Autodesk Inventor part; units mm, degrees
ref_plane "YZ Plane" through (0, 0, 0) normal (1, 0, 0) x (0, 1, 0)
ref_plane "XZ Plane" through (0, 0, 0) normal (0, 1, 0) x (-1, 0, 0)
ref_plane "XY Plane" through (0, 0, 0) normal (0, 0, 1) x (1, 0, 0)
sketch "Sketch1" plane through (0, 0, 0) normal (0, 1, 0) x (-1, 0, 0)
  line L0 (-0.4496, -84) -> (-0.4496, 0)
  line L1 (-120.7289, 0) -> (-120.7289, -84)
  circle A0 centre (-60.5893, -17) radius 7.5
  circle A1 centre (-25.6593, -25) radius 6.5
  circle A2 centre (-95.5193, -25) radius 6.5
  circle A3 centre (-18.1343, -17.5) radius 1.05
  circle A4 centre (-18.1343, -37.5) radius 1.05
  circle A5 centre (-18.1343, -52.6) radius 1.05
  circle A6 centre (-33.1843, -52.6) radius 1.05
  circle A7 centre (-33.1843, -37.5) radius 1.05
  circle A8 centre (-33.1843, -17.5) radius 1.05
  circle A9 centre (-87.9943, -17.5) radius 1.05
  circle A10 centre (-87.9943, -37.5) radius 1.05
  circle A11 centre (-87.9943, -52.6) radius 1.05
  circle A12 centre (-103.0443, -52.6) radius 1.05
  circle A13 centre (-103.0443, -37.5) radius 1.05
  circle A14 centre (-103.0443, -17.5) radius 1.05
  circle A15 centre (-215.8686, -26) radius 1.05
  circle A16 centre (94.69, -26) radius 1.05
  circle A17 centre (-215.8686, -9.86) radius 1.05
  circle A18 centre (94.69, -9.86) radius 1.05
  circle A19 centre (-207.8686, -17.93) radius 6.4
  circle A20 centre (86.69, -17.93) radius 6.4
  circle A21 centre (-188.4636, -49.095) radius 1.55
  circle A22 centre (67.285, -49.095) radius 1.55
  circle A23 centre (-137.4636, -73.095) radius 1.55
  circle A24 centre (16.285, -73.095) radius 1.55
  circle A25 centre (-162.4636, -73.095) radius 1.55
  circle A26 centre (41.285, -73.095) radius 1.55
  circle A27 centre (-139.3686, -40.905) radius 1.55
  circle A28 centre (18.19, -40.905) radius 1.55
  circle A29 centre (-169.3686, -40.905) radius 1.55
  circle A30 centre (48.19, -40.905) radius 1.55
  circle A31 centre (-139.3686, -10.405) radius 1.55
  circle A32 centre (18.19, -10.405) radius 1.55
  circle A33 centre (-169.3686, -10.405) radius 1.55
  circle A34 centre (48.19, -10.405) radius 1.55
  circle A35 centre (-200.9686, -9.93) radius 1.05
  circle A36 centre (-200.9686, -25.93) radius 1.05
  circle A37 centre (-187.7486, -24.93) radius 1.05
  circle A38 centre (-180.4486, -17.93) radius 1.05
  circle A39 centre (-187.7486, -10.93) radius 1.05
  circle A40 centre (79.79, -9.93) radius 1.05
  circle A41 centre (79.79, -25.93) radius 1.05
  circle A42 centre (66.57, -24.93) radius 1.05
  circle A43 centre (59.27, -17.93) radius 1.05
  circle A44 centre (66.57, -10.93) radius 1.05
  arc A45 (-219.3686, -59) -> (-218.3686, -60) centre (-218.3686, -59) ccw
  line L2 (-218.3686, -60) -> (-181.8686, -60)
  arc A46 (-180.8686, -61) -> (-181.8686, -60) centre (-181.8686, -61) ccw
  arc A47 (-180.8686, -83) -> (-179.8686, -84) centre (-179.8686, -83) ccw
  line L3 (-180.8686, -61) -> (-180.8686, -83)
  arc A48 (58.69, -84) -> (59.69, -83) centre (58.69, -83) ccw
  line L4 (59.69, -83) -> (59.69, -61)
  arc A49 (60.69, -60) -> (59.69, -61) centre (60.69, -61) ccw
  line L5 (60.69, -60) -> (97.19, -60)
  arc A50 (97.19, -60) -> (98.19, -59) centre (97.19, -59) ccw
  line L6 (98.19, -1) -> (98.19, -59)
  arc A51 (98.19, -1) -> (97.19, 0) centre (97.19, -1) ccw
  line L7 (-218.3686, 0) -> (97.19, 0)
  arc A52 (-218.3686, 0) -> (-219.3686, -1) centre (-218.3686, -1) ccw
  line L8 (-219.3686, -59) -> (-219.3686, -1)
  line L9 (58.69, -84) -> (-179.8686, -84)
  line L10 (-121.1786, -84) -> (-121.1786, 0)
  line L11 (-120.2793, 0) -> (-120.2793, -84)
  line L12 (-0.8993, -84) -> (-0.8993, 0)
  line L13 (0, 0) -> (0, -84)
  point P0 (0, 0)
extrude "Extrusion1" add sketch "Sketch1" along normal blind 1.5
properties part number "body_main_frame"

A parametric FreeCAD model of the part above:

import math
import FreeCAD as App
import Part
import Sketcher
Q = App.Units.Quantity

doc = App.newDocument("Part")
body = doc.addObject("PartDesign::Body", "Body")

# Sketch on XZ plane
sketch1 = body.newObject("Sketcher::SketchObject", "Sketch")
sketch1.AttachmentSupport = (doc.getObject("XZ_Plane"), [""])
sketch1.MapMode = "FlatFace"
sketch1.addGeometry(Part.ArcOfCircle(Part.Circle(App.Vector(-58.7, -83, 0), App.Vector(0, 0, 1), 1), math.radians(180), math.radians(270)), False)
sketch1.addGeometry(Part.LineSegment(App.Vector(-59.7, -83, 0), App.Vector(-59.7, -61, 0)), False)
sketch1.addGeometry(Part.ArcOfCircle(Part.Circle(App.Vector(-60.7, -61, 0), App.Vector(0, 0, 1), 1), math.radians(0), math.radians(90)), False)
sketch1.addGeometry(Part.LineSegment(App.Vector(-60.7, -60, 0), App.Vector(-97.2, -60, 0)), False)
sketch1.addGeometry(Part.ArcOfCircle(Part.Circle(App.Vector(-97.2, -59, 0), App.Vector(0, 0, 1), 1), math.radians(180), math.radians(270)), False)
sketch1.addGeometry(Part.LineSegment(App.Vector(-98.2, -59, 0), App.Vector(-98.2, -1, 0)), False)
sketch1.addGeometry(Part.ArcOfCircle(Part.Circle(App.Vector(-97.2, -1, 0), App.Vector(0, 0, 1), 1), math.radians(90), math.radians(180)), False)
sketch1.addGeometry(Part.LineSegment(App.Vector(-97.2, 0, 0), App.Vector(218.4, 0, 0)), False)
sketch1.addGeometry(Part.ArcOfCircle(Part.Circle(App.Vector(218.4, -1, 0), App.Vector(0, 0, 1), 1), math.radians(0), math.radians(90)), False)
sketch1.addGeometry(Part.LineSegment(App.Vector(219.4, -1, 0), App.Vector(219.4, -59, 0)), False)
sketch1.addGeometry(Part.ArcOfCircle(Part.Circle(App.Vector(218.4, -59, 0), App.Vector(0, 0, 1), 1), math.radians(-90), math.radians(0)), False)
sketch1.addGeometry(Part.LineSegment(App.Vector(218.4, -60, 0), App.Vector(181.9, -60, 0)), False)
sketch1.addGeometry(Part.ArcOfCircle(Part.Circle(App.Vector(181.9, -61, 0), App.Vector(0, 0, 1), 1), math.radians(90), math.radians(180)), False)
sketch1.addGeometry(Part.LineSegment(App.Vector(180.9, -61, 0), App.Vector(180.9, -83, 0)), False)
sketch1.addGeometry(Part.ArcOfCircle(Part.Circle(App.Vector(179.9, -83, 0), App.Vector(0, 0, 1), 1), math.radians(-90), math.radians(0)), False)
sketch1.addGeometry(Part.LineSegment(App.Vector(179.9, -84, 0), App.Vector(-58.7, -84, 0)), False)
sketch1.addGeometry(Part.Circle(App.Vector(18.1, -17.5, 0), App.Vector(0, 0, 1), 1.1), False)
sketch1.addGeometry(Part.Circle(App.Vector(103, -52.6, 0), App.Vector(0, 0, 1), 1.1), False)
sketch1.addGeometry(Part.Circle(App.Vector(88, -52.6, 0), App.Vector(0, 0, 1), 1.1), False)
sketch1.addGeometry(Part.Circle(App.Vector(33.2, -52.6, 0), App.Vector(0, 0, 1), 1.1), False)
sketch1.addGeometry(Part.Circle(App.Vector(18.1, -52.6, 0), App.Vector(0, 0, 1), 1.1), False)
sketch1.addGeometry(Part.Circle(App.Vector(103, -37.5, 0), App.Vector(0, 0, 1), 1.1), False)
sketch1.addGeometry(Part.Circle(App.Vector(88, -37.5, 0), App.Vector(0, 0, 1), 1.1), False)
sketch1.addGeometry(Part.Circle(App.Vector(95.5, -25, 0), App.Vector(0, 0, 1), 6.5), False)
sketch1.addGeometry(Part.Circle(App.Vector(103, -17.5, 0), App.Vector(0, 0, 1), 1.1), False)
sketch1.addGeometry(Part.Circle(App.Vector(88, -17.5, 0), App.Vector(0, 0, 1), 1.1), False)
sketch1.addGeometry(Part.Circle(App.Vector(33.2, -37.5, 0), App.Vector(0, 0, 1), 1.1), False)
sketch1.addGeometry(Part.Circle(App.Vector(18.1, -37.5, 0), App.Vector(0, 0, 1), 1.1), False)
sketch1.addGeometry(Part.Circle(App.Vector(25.7, -25, 0), App.Vector(0, 0, 1), 6.5), False)
sketch1.addGeometry(Part.Circle(App.Vector(60.6, -17, 0), App.Vector(0, 0, 1), 7.5), False)
sketch1.addGeometry(Part.Circle(App.Vector(33.2, -17.5, 0), App.Vector(0, 0, 1), 1.1), False)
sketch1.addGeometry(Part.Circle(App.Vector(-94.7, -9.9, 0), App.Vector(0, 0, 1), 1.1), False)
sketch1.addGeometry(Part.Circle(App.Vector(-16.3, -73.1, 0), App.Vector(0, 0, 1), 1.6), False)
sketch1.addGeometry(Part.Circle(App.Vector(-41.3, -73.1, 0), App.Vector(0, 0, 1), 1.6), False)
sketch1.addGeometry(Part.Circle(App.Vector(-67.3, -49.1, 0), App.Vector(0, 0, 1), 1.6), False)
sketch1.addGeometry(Part.Circle(App.Vector(-18.2, -40.9, 0), App.Vector(0, 0, 1), 1.6), False)
sketch1.addGeometry(Part.Circle(App.Vector(-48.2, -40.9, 0), App.Vector(0, 0, 1), 1.6), False)
sketch1.addGeometry(Part.Circle(App.Vector(-66.6, -24.9, 0), App.Vector(0, 0, 1), 1.1), False)
sketch1.addGeometry(Part.Circle(App.Vector(-79.8, -25.9, 0), App.Vector(0, 0, 1), 1.1), False)
sketch1.addGeometry(Part.Circle(App.Vector(-94.7, -26, 0), App.Vector(0, 0, 1), 1.1), False)
sketch1.addGeometry(Part.Circle(App.Vector(-18.2, -10.4, 0), App.Vector(0, 0, 1), 1.6), False)
sketch1.addGeometry(Part.Circle(App.Vector(-59.3, -17.9, 0), App.Vector(0, 0, 1), 1.1), False)
sketch1.addGeometry(Part.Circle(App.Vector(-86.7, -17.9, 0), App.Vector(0, 0, 1), 6.4), False)
sketch1.addGeometry(Part.Circle(App.Vector(-66.6, -10.9, 0), App.Vector(0, 0, 1), 1.1), False)
sketch1.addGeometry(Part.Circle(App.Vector(-48.2, -10.4, 0), App.Vector(0, 0, 1), 1.6), False)
sketch1.addGeometry(Part.Circle(App.Vector(-79.8, -9.9, 0), App.Vector(0, 0, 1), 1.1), False)
sketch1.addGeometry(Part.Circle(App.Vector(139.4, -10.4, 0), App.Vector(0, 0, 1), 1.6), False)
sketch1.addGeometry(Part.Circle(App.Vector(162.5, -73.1, 0), App.Vector(0, 0, 1), 1.6), False)
sketch1.addGeometry(Part.Circle(App.Vector(137.5, -73.1, 0), App.Vector(0, 0, 1), 1.6), False)
sketch1.addGeometry(Part.Circle(App.Vector(188.5, -49.1, 0), App.Vector(0, 0, 1), 1.6), False)
sketch1.addGeometry(Part.Circle(App.Vector(169.4, -40.9, 0), App.Vector(0, 0, 1), 1.6), False)
sketch1.addGeometry(Part.Circle(App.Vector(215.9, -26, 0), App.Vector(0, 0, 1), 1.1), False)
sketch1.addGeometry(Part.Circle(App.Vector(201, -25.9, 0), App.Vector(0, 0, 1), 1.1), False)
sketch1.addGeometry(Part.Circle(App.Vector(187.7, -24.9, 0), App.Vector(0, 0, 1), 1.1), False)
sketch1.addGeometry(Part.Circle(App.Vector(139.4, -40.9, 0), App.Vector(0, 0, 1), 1.6), False)
sketch1.addGeometry(Part.Circle(App.Vector(207.9, -17.9, 0), App.Vector(0, 0, 1), 6.4), False)
sketch1.addGeometry(Part.Circle(App.Vector(180.4, -17.9, 0), App.Vector(0, 0, 1), 1.1), False)
sketch1.addGeometry(Part.Circle(App.Vector(187.7, -10.9, 0), App.Vector(0, 0, 1), 1.1), False)
sketch1.addGeometry(Part.Circle(App.Vector(215.9, -9.9, 0), App.Vector(0, 0, 1), 1.1), False)
sketch1.addGeometry(Part.Circle(App.Vector(201, -9.9, 0), App.Vector(0, 0, 1), 1.1), False)
sketch1.addGeometry(Part.Circle(App.Vector(169.4, -10.4, 0), App.Vector(0, 0, 1), 1.6), False)
sketch1.addConstraint(Sketcher.Constraint("Tangent", 0, 1, 1, 1))
sketch1.addConstraint(Sketcher.Constraint("Tangent", 1, 2, 2, 1))
sketch1.addConstraint(Sketcher.Constraint("Tangent", 2, 2, 3, 1))
sketch1.addConstraint(Sketcher.Constraint("Tangent", 3, 2, 4, 2))
sketch1.addConstraint(Sketcher.Constraint("Tangent", 4, 1, 5, 1))
sketch1.addConstraint(Sketcher.Constraint("Tangent", 5, 2, 6, 2))
sketch1.addConstraint(Sketcher.Constraint("Tangent", 6, 1, 7, 1))
sketch1.addConstraint(Sketcher.Constraint("Tangent", 7, 2, 8, 2))
sketch1.addConstraint(Sketcher.Constraint("Tangent", 8, 1, 9, 1))
sketch1.addConstraint(Sketcher.Constraint("Tangent", 9, 2, 10, 2))
sketch1.addConstraint(Sketcher.Constraint("Tangent", 10, 1, 11, 1))
sketch1.addConstraint(Sketcher.Constraint("Tangent", 11, 2, 12, 1))
sketch1.addConstraint(Sketcher.Constraint("Tangent", 12, 2, 13, 1))
sketch1.addConstraint(Sketcher.Constraint("Tangent", 13, 2, 14, 2))
sketch1.addConstraint(Sketcher.Constraint("Tangent", 14, 1, 15, 1))
sketch1.addConstraint(Sketcher.Constraint("Tangent", 15, 2, 0, 2))
sketch1.addConstraint(Sketcher.Constraint("Vertical", 1))
sketch1.addConstraint(Sketcher.Constraint("Horizontal", 3))
sketch1.addConstraint(Sketcher.Constraint("Vertical", 5))
sketch1.addConstraint(Sketcher.Constraint("Horizontal", 7))
sketch1.addConstraint(Sketcher.Constraint("Vertical", 9))
sketch1.addConstraint(Sketcher.Constraint("Horizontal", 11))
sketch1.addConstraint(Sketcher.Constraint("Vertical", 13))
sketch1.addConstraint(Sketcher.Constraint("Horizontal", 15))
sketch1.addConstraint(Sketcher.Constraint("Equal", 0, 2))
sketch1.addConstraint(Sketcher.Constraint("Equal", 2, 4))
sketch1.addConstraint(Sketcher.Constraint("Equal", 4, 6))
sketch1.addConstraint(Sketcher.Constraint("Equal", 6, 8))
sketch1.addConstraint(Sketcher.Constraint("Equal", 8, 10))
sketch1.addConstraint(Sketcher.Constraint("Equal", 10, 12))
sketch1.addConstraint(Sketcher.Constraint("Equal", 12, 14))
sketch1.addConstraint(Sketcher.Constraint("Equal", 16, 17))
sketch1.addConstraint(Sketcher.Constraint("Equal", 17, 18))
sketch1.addConstraint(Sketcher.Constraint("Equal", 18, 19))
sketch1.addConstraint(Sketcher.Constraint("Equal", 19, 20))
sketch1.addConstraint(Sketcher.Constraint("Equal", 20, 21))
sketch1.addConstraint(Sketcher.Constraint("Equal", 21, 22))
sketch1.addConstraint(Sketcher.Constraint("Equal", 22, 24))
sketch1.addConstraint(Sketcher.Constraint("Equal", 24, 25))
sketch1.addConstraint(Sketcher.Constraint("Equal", 25, 26))
sketch1.addConstraint(Sketcher.Constraint("Equal", 26, 27))
sketch1.addConstraint(Sketcher.Constraint("Equal", 23, 28))
sketch1.addConstraint(Sketcher.Constraint("Equal", 27, 30))
sketch1.addConstraint(Sketcher.Constraint("Equal", 30, 31))
sketch1.addConstraint(Sketcher.Constraint("Equal", 32, 33))
sketch1.addConstraint(Sketcher.Constraint("Equal", 33, 34))
sketch1.addConstraint(Sketcher.Constraint("Equal", 34, 35))
sketch1.addConstraint(Sketcher.Constraint("Equal", 35, 36))
sketch1.addConstraint(Sketcher.Constraint("Equal", 31, 37))
sketch1.addConstraint(Sketcher.Constraint("Equal", 37, 38))
sketch1.addConstraint(Sketcher.Constraint("Equal", 38, 39))
sketch1.addConstraint(Sketcher.Constraint("Equal", 36, 40))
sketch1.addConstraint(Sketcher.Constraint("Equal", 39, 41))
sketch1.addConstraint(Sketcher.Constraint("Equal", 41, 43))
sketch1.addConstraint(Sketcher.Constraint("Equal", 40, 44))
sketch1.addConstraint(Sketcher.Constraint("Equal", 43, 45))
sketch1.addConstraint(Sketcher.Constraint("Equal", 44, 46))
sketch1.addConstraint(Sketcher.Constraint("Equal", 46, 47))
sketch1.addConstraint(Sketcher.Constraint("Equal", 47, 48))
sketch1.addConstraint(Sketcher.Constraint("Equal", 48, 49))
sketch1.addConstraint(Sketcher.Constraint("Equal", 49, 50))
sketch1.addConstraint(Sketcher.Constraint("Equal", 45, 51))
sketch1.addConstraint(Sketcher.Constraint("Equal", 51, 52))
sketch1.addConstraint(Sketcher.Constraint("Equal", 52, 53))
sketch1.addConstraint(Sketcher.Constraint("Equal", 50, 54))
sketch1.addConstraint(Sketcher.Constraint("Equal", 42, 55))
sketch1.addConstraint(Sketcher.Constraint("Equal", 53, 56))
sketch1.addConstraint(Sketcher.Constraint("Equal", 56, 57))
sketch1.addConstraint(Sketcher.Constraint("Equal", 57, 58))
sketch1.addConstraint(Sketcher.Constraint("Equal", 58, 59))
sketch1.addConstraint(Sketcher.Constraint("Equal", 54, 60))
sketch1.addConstraint(Sketcher.Constraint("PointOnObject", 6, 1, -1))
sketch1.addConstraint(Sketcher.Constraint("Horizontal", 4, 3, 10, 3))
sketch1.addConstraint(Sketcher.Constraint("Horizontal", 17, 3, 18, 3))
sketch1.addConstraint(Sketcher.Constraint("Horizontal", 18, 3, 19, 3))
sketch1.addConstraint(Sketcher.Constraint("Horizontal", 19, 3, 20, 3))
sketch1.addConstraint(Sketcher.Constraint("Horizontal", 21, 3, 22, 3))
sketch1.addConstraint(Sketcher.Constraint("Horizontal", 16, 3, 24, 3))
sketch1.addConstraint(Sketcher.Constraint("Horizontal", 24, 3, 25, 3))
sketch1.addConstraint(Sketcher.Constraint("Horizontal", 22, 3, 26, 3))
sketch1.addConstraint(Sketcher.Constraint("Horizontal", 26, 3, 27, 3))
sketch1.addConstraint(Sketcher.Constraint("Horizontal", 23, 3, 28, 3))
sketch1.addConstraint(Sketcher.Constraint("Horizontal", 25, 3, 30, 3))
sketch1.addConstraint(Sketcher.Constraint("Horizontal", 32, 3, 33, 3))
sketch1.addConstraint(Sketcher.Constraint("Horizontal", 35, 3, 36, 3))
sketch1.addConstraint(Sketcher.Constraint("Horizontal", 41, 3, 42, 3))
sketch1.addConstraint(Sketcher.Constraint("Horizontal", 40, 3, 44, 3))
sketch1.addConstraint(Sketcher.Constraint("Horizontal", 44, 3, 46, 3))
sketch1.addConstraint(Sketcher.Constraint("Horizontal", 33, 3, 47, 3))
sketch1.addConstraint(Sketcher.Constraint("Horizontal", 47, 3, 48, 3))
sketch1.addConstraint(Sketcher.Constraint("Horizontal", 34, 3, 49, 3))
sketch1.addConstraint(Sketcher.Constraint("Horizontal", 36, 3, 50, 3))
sketch1.addConstraint(Sketcher.Constraint("Horizontal", 39, 3, 51, 3))
sketch1.addConstraint(Sketcher.Constraint("Horizontal", 38, 3, 52, 3))
sketch1.addConstraint(Sketcher.Constraint("Horizontal", 37, 3, 53, 3))
sketch1.addConstraint(Sketcher.Constraint("Horizontal", 50, 3, 54, 3))
sketch1.addConstraint(Sketcher.Constraint("Horizontal", 42, 3, 55, 3))
sketch1.addConstraint(Sketcher.Constraint("Horizontal", 55, 3, 56, 3))
sketch1.addConstraint(Sketcher.Constraint("Horizontal", 43, 3, 57, 3))
sketch1.addConstraint(Sketcher.Constraint("Horizontal", 31, 3, 58, 3))
sketch1.addConstraint(Sketcher.Constraint("Horizontal", 45, 3, 59, 3))
sketch1.addConstraint(Sketcher.Constraint("Horizontal", 46, 3, 60, 3))
sketch1.addConstraint(Sketcher.Constraint("Vertical", 16, 3, 20, 3))
sketch1.addConstraint(Sketcher.Constraint("Vertical", 17, 3, 21, 3))
sketch1.addConstraint(Sketcher.Constraint("Vertical", 18, 3, 22, 3))
sketch1.addConstraint(Sketcher.Constraint("Vertical", 21, 3, 24, 3))
sketch1.addConstraint(Sketcher.Constraint("Vertical", 22, 3, 25, 3))
sketch1.addConstraint(Sketcher.Constraint("Vertical", 19, 3, 26, 3))
sketch1.addConstraint(Sketcher.Constraint("Vertical", 20, 3, 27, 3))
sketch1.addConstraint(Sketcher.Constraint("Vertical", 26, 3, 30, 3))
sketch1.addConstraint(Sketcher.Constraint("Vertical", 31, 3, 39, 3))
sketch1.addConstraint(Sketcher.Constraint("Vertical", 35, 3, 40, 3))
sketch1.addConstraint(Sketcher.Constraint("Vertical", 37, 3, 43, 3))
sketch1.addConstraint(Sketcher.Constraint("Vertical", 36, 3, 44, 3))
sketch1.addConstraint(Sketcher.Constraint("Vertical", 38, 3, 45, 3))
sketch1.addConstraint(Sketcher.Constraint("Vertical", 46, 3, 54, 3))
sketch1.addConstraint(Sketcher.Constraint("Vertical", 53, 3, 57, 3))
sketch1.addConstraint(Sketcher.Constraint("Vertical", 51, 3, 58, 3))
sketch1.addConstraint(Sketcher.Constraint("Vertical", 52, 3, 59, 3))
sketch1.addConstraint(Sketcher.Constraint("Vertical", 50, 3, 60, 3))
sketch1.addConstraint(Sketcher.Constraint("Equal", 3, 11))
sketch1.addConstraint(Sketcher.Constraint("Diameter", 23, Q("13 mm")))
sketch1.addConstraint(Sketcher.Constraint("Diameter", 29, Q("15 mm")))
sketch1.addConstraint(Sketcher.Constraint("Radius", 0, Q("1 mm")))
sketch1.addConstraint(Sketcher.Constraint("Diameter", 16, Q("2.1 mm")))
sketch1.addConstraint(Sketcher.Constraint("Diameter", 32, Q("3.1 mm")))
sketch1.addConstraint(Sketcher.Constraint("Diameter", 42, Q("12.8 mm")))
sketch1.addConstraint(Sketcher.Constraint("DistanceY", 1, 1, 1, 2, Q("22 mm")))
sketch1.addConstraint(Sketcher.Constraint("DistanceY", 5, 1, 5, 2, Q("58 mm")))
sketch1.addConstraint(Sketcher.Constraint("DistanceX", 3, 2, 3, 1, Q("36.5 mm")))
sketch1.addConstraint(Sketcher.Constraint("DistanceY", 23, 3, -1, 1, Q("25 mm")))
sketch1.addConstraint(Sketcher.Constraint("DistanceY", 29, 3, -1, 1, Q("17 mm")))
sketch1.addConstraint(Sketcher.Constraint("DistanceY", 39, 3, -1, 1, Q("26 mm")))
sketch1.addConstraint(Sketcher.Constraint("DistanceY", 16, 3, -1, 1, Q("17.5 mm")))
sketch1.addConstraint(Sketcher.Constraint("DistanceY", 17, 3, -1, 1, Q("52.6 mm")))
sketch1.addConstraint(Sketcher.Constraint("DistanceY", 21, 3, -1, 1, Q("37.5 mm")))
sketch1.addConstraint(Sketcher.Constraint("DistanceX", 0, 3, -1, 1, Q("58.69 mm")))
sketch1.addConstraint(Sketcher.Constraint("DistanceX", 31, 3, -1, 1, Q("94.69 mm")))
sketch1.addConstraint(Sketcher.Constraint("DistanceY", 31, 3, -1, 1, Q("9.86 mm")))
sketch1.addConstraint(Sketcher.Constraint("DistanceX", 35, 3, -1, 1, Q("18.19 mm")))
sketch1.addConstraint(Sketcher.Constraint("DistanceX", 36, 3, -1, 1, Q("48.19 mm")))
sketch1.addConstraint(Sketcher.Constraint("DistanceX", 37, 3, -1, 1, Q("66.57 mm")))
sketch1.addConstraint(Sketcher.Constraint("DistanceY", 37, 3, -1, 1, Q("24.93 mm")))
sketch1.addConstraint(Sketcher.Constraint("DistanceX", 38, 3, -1, 1, Q("79.79 mm")))
sketch1.addConstraint(Sketcher.Constraint("DistanceY", 38, 3, -1, 1, Q("25.93 mm")))
sketch1.addConstraint(Sketcher.Constraint("DistanceX", 41, 3, -1, 1, Q("59.27 mm")))
sketch1.addConstraint(Sketcher.Constraint("DistanceY", 41, 3, -1, 1, Q("17.93 mm")))
sketch1.addConstraint(Sketcher.Constraint("DistanceX", 42, 3, -1, 1, Q("86.69 mm")))
sketch1.addConstraint(Sketcher.Constraint("DistanceY", 43, 3, -1, 1, Q("10.93 mm")))
sketch1.addConstraint(Sketcher.Constraint("DistanceY", 45, 3, -1, 1, Q("9.93 mm")))
sketch1.addConstraint(Sketcher.Constraint("DistanceX", 7, 1, 7, 2, Q("315.5586 mm")))
sketch1.addConstraint(Sketcher.Constraint("DistanceX", 32, 3, -1, 1, Q("16.285 mm")))
sketch1.addConstraint(Sketcher.Constraint("DistanceY", 32, 3, -1, 1, Q("73.095 mm")))
sketch1.addConstraint(Sketcher.Constraint("DistanceX", 33, 3, -1, 1, Q("41.285 mm")))
sketch1.addConstraint(Sketcher.Constraint("DistanceX", 34, 3, -1, 1, Q("67.285 mm")))
sketch1.addConstraint(Sketcher.Constraint("DistanceY", 34, 3, -1, 1, Q("49.095 mm")))
sketch1.addConstraint(Sketcher.Constraint("DistanceY", 35, 3, -1, 1, Q("40.905 mm")))
sketch1.addConstraint(Sketcher.Constraint("DistanceY", 40, 3, -1, 1, Q("10.405 mm")))
sketch1.addConstraint(Sketcher.Constraint("DistanceX", -1, 1, 16, 3, Q("18.1343 mm")))
sketch1.addConstraint(Sketcher.Constraint("DistanceX", -1, 1, 17, 3, Q("103.0443 mm")))
sketch1.addConstraint(Sketcher.Constraint("DistanceX", -1, 1, 18, 3, Q("87.9943 mm")))
sketch1.addConstraint(Sketcher.Constraint("DistanceX", -1, 1, 19, 3, Q("33.1843 mm")))
sketch1.addConstraint(Sketcher.Constraint("DistanceX", -1, 1, 23, 3, Q("95.5193 mm")))
sketch1.addConstraint(Sketcher.Constraint("DistanceX", -1, 1, 28, 3, Q("25.6593 mm")))
sketch1.addConstraint(Sketcher.Constraint("DistanceX", -1, 1, 29, 3, Q("60.5893 mm")))
sketch1.addConstraint(Sketcher.Constraint("DistanceX", -1, 1, 46, 3, Q("139.3686 mm")))
sketch1.addConstraint(Sketcher.Constraint("DistanceX", -1, 1, 47, 3, Q("162.4636 mm")))
sketch1.addConstraint(Sketcher.Constraint("DistanceX", -1, 1, 48, 3, Q("137.4636 mm")))
sketch1.addConstraint(Sketcher.Constraint("DistanceX", -1, 1, 49, 3, Q("188.4636 mm")))
sketch1.addConstraint(Sketcher.Constraint("DistanceX", -1, 1, 50, 3, Q("169.3686 mm")))
sketch1.addConstraint(Sketcher.Constraint("DistanceX", -1, 1, 51, 3, Q("215.8686 mm")))
sketch1.addConstraint(Sketcher.Constraint("DistanceX", -1, 1, 52, 3, Q("200.9686 mm")))
sketch1.addConstraint(Sketcher.Constraint("DistanceX", -1, 1, 53, 3, Q("187.7486 mm")))
sketch1.addConstraint(Sketcher.Constraint("DistanceX", -1, 1, 55, 3, Q("207.8686 mm")))
sketch1.addConstraint(Sketcher.Constraint("DistanceX", -1, 1, 56, 3, Q("180.4486 mm")))
pad1 = body.newObject("PartDesign::Pad", "Pad")
pad1.Profile = sketch1
pad1.Length = 1.5
pad1.Reversed = True

doc.recompute()
